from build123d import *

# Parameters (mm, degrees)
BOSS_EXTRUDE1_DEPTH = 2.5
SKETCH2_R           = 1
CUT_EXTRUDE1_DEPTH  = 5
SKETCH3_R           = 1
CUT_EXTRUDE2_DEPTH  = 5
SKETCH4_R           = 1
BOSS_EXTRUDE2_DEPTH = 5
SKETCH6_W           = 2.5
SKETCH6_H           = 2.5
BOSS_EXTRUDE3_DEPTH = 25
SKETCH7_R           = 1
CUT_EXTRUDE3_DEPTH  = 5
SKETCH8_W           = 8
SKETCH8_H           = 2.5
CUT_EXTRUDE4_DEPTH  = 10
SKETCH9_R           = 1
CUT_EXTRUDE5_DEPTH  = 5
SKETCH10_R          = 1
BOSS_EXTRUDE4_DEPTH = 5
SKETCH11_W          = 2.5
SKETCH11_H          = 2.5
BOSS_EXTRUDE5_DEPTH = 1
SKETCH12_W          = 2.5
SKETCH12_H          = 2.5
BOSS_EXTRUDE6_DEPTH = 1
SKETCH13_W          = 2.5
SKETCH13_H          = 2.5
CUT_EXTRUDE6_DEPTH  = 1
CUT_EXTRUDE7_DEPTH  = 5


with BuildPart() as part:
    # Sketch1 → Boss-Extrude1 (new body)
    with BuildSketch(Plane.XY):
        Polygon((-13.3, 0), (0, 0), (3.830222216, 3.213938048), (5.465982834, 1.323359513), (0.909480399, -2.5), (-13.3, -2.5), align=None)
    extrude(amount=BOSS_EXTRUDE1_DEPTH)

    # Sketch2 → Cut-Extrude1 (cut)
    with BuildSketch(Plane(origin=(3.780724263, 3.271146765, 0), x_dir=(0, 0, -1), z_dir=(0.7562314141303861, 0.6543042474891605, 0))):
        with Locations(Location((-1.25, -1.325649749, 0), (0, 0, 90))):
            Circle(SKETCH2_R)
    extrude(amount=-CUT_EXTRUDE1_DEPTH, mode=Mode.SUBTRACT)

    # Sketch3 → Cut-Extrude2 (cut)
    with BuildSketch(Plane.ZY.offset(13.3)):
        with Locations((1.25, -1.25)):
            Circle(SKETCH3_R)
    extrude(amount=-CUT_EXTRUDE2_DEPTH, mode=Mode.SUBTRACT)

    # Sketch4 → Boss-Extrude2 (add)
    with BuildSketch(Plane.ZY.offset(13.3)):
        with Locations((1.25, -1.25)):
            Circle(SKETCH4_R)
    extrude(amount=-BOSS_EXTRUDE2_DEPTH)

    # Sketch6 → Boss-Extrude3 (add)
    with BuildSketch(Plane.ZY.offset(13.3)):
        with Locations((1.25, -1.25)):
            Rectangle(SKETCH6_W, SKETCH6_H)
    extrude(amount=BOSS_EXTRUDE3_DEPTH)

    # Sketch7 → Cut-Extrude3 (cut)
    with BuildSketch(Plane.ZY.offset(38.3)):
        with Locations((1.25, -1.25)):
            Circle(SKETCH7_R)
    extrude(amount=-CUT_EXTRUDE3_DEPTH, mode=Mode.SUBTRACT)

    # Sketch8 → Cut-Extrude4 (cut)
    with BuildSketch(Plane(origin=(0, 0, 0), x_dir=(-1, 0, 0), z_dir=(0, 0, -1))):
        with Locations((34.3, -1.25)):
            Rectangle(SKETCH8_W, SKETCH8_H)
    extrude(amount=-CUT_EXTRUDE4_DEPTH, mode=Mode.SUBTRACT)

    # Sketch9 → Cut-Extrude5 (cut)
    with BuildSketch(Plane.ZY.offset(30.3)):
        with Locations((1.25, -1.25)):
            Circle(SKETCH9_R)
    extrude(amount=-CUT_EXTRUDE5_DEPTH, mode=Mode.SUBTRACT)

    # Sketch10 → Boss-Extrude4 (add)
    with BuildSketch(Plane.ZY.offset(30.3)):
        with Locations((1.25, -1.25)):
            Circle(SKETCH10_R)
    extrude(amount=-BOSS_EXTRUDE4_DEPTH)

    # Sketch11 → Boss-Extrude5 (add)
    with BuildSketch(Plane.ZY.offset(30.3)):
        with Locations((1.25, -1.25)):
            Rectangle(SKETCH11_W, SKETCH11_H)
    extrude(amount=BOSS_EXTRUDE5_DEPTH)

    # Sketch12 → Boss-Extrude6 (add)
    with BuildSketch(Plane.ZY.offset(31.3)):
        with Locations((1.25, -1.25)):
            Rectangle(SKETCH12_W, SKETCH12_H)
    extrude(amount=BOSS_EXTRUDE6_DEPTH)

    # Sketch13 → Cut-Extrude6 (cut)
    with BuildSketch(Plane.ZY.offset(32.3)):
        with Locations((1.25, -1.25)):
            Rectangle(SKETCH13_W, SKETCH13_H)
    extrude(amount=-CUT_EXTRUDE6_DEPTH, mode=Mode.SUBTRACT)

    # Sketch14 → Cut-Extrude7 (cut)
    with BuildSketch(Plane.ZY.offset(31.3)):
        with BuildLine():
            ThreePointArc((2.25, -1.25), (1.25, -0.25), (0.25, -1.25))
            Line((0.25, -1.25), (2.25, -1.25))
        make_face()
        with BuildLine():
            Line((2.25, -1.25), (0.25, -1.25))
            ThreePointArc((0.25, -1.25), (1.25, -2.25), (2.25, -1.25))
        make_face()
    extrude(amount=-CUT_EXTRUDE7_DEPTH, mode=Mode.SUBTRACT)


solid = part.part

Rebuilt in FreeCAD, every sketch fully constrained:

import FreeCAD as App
import Part
import Sketcher
Q = App.Units.Quantity

doc = App.newDocument("Part")
body = doc.addObject("PartDesign::Body", "Body")

# Sketch on XY plane
sketch1 = body.newObject("Sketcher::SketchObject", "Sketch")
sketch1.AttachmentSupport = (doc.getObject("XY_Plane"), [""])
sketch1.MapMode = "FlatFace"
sketch1.addGeometry(Part.LineSegment(App.Vector(0, 0, 0), App.Vector(-13.3, 0, 0)), False)
sketch1.addGeometry(Part.LineSegment(App.Vector(-13.3, 0, 0), App.Vector(-13.3, -2.5, 0)), False)
sketch1.addGeometry(Part.LineSegment(App.Vector(-13.3, -2.5, 0), App.Vector(0.9, -2.5, 0)), False)
sketch1.addGeometry(Part.LineSegment(App.Vector(0.9, -2.5, 0), App.Vector(5.5, 1.3, 0)), False)
sketch1.addGeometry(Part.LineSegment(App.Vector(5.5, 1.3, 0), App.Vector(3.8, 3.2, 0)), False)
sketch1.addGeometry(Part.LineSegment(App.Vector(3.8, 3.2, 0), App.Vector(0, 0, 0)), False)
sketch1.addConstraint(Sketcher.Constraint("Coincident", 0, 2, 1, 1))
sketch1.addConstraint(Sketcher.Constraint("Coincident", 1, 2, 2, 1))
sketch1.addConstraint(Sketcher.Constraint("Coincident", 2, 2, 3, 1))
sketch1.addConstraint(Sketcher.Constraint("Coincident", 3, 2, 4, 1))
sketch1.addConstraint(Sketcher.Constraint("Coincident", 4, 2, 5, 1))
sketch1.addConstraint(Sketcher.Constraint("Coincident", 5, 2, 0, 1))
sketch1.addConstraint(Sketcher.Constraint("Horizontal", 0))
sketch1.addConstraint(Sketcher.Constraint("Vertical", 1))
sketch1.addConstraint(Sketcher.Constraint("Horizontal", 2))
sketch1.addConstraint(Sketcher.Constraint("Coincident", 5, 2, -1, 1))
sketch1.addConstraint(Sketcher.Constraint("Parallel", 3, 5))
sketch1.addConstraint(Sketcher.Constraint("Angle", 3, Q("40 deg")))
sketch1.addConstraint(Sketcher.Constraint("Distance", 5, Q("5 mm")))
sketch1.addConstraint(Sketcher.Constraint("DistanceX", 0, 2, 0, 1, Q("13.3 mm")))
sketch1.addConstraint(Sketcher.Constraint("DistanceY", 1, 2, 1, 1, Q("2.5 mm")))
sketch1.addConstraint(Sketcher.Constraint("Distance", 4, Q("2.5 mm")))
sketch1.addConstraint(Sketcher.Constraint("DistanceX", 2, 1, 2, 2, Q("14.20948 mm")))
pad1 = body.newObject("PartDesign::Pad", "Pad")
pad1.Profile = sketch1
pad1.Length = 2.5

# Sketch on an angled plane
sketch2 = body.newObject("Sketcher::SketchObject", "Sketch001")
sketch2.Placement = App.Placement(App.Vector(3.780724, 3.271147, 0), App.Rotation(App.Vector(0, 0, -1), App.Vector(-0.654304247, 0.756231414, 0), App.Vector(0.756231414, 0.654304247, 0), "ZXY"))
sketch2.addGeometry(Part.Circle(App.Vector(-1.2, -1.3, 0), App.Vector(0, 0, 1), 1), False)
sketch2.addConstraint(Sketcher.Constraint("Diameter", 0, Q("2 mm")))
sketch2.addConstraint(Sketcher.Constraint("DistanceX", 0, 3, -1, 1, Q("1.25 mm")))
sketch2.addConstraint(Sketcher.Constraint("DistanceY", 0, 3, -1, 1, Q("1.32565 mm")))
pocket1 = body.newObject("PartDesign::Pocket", "Pocket")
pocket1.Profile = sketch2
pocket1.Length = 5

# Sketch on YZ plane
sketch3 = body.newObject("Sketcher::SketchObject", "Sketch002")
sketch3.AttachmentSupport = (doc.getObject("YZ_Plane"), [""])
sketch3.MapMode = "FlatFace"
sketch3.AttachmentOffset = App.Placement(App.Vector(0, 0, -13.3), App.Rotation())
sketch3.addGeometry(Part.Circle(App.Vector(-1.2, 1.2, 0), App.Vector(0, 0, 1), 1), False)
sketch3.addConstraint(Sketcher.Constraint("Diameter", 0, Q("2 mm")))
sketch3.addConstraint(Sketcher.Constraint("DistanceX", 0, 3, -1, 1, Q("1.25 mm")))
sketch3.addConstraint(Sketcher.Constraint("DistanceY", -1, 1, 0, 3, Q("1.25 mm")))
pocket2 = body.newObject("PartDesign::Pocket", "Pocket001")
pocket2.Profile = sketch3
pocket2.Length = 5
pocket2.Reversed = True

# Sketch on YZ plane
sketch4 = body.newObject("Sketcher::SketchObject", "Sketch003")
sketch4.AttachmentSupport = (doc.getObject("YZ_Plane"), [""])
sketch4.MapMode = "FlatFace"
sketch4.AttachmentOffset = App.Placement(App.Vector(0, 0, -13.3), App.Rotation())
sketch4.addGeometry(Part.Circle(App.Vector(-1.2, 1.2, 0), App.Vector(0, 0, 1), 1), False)
sketch4.addConstraint(Sketcher.Constraint("Diameter", 0, Q("2 mm")))
sketch4.addConstraint(Sketcher.Constraint("DistanceX", 0, 3, -1, 1, Q("1.25 mm")))
sketch4.addConstraint(Sketcher.Constraint("DistanceY", -1, 1, 0, 3, Q("1.25 mm")))
pad2 = body.newObject("PartDesign::Pad", "Pad001")
pad2.Profile = sketch4
pad2.Length = 5

# Sketch on YZ plane
sketch5 = body.newObject("Sketcher::SketchObject", "Sketch004")
sketch5.AttachmentSupport = (doc.getObject("YZ_Plane"), [""])
sketch5.MapMode = "FlatFace"
sketch5.AttachmentOffset = App.Placement(App.Vector(0, 0, -13.3), App.Rotation())
sketch5.addGeometry(Part.LineSegment(App.Vector(0, 0, 0), App.Vector(-2.5, 0, 0)), False)
sketch5.addGeometry(Part.LineSegment(App.Vector(-2.5, 0, 0), App.Vector(-2.5, 2.5, 0)), False)
sketch5.addGeometry(Part.LineSegment(App.Vector(-2.5, 2.5, 0), App.Vector(0, 2.5, 0)), False)
sketch5.addGeometry(Part.LineSegment(App.Vector(0, 2.5, 0), App.Vector(0, 0, 0)), False)
sketch5.addConstraint(Sketcher.Constraint("Coincident", 0, 2, 1, 1))
sketch5.addConstraint(Sketcher.Constraint("Coincident", 1, 2, 2, 1))
sketch5.addConstraint(Sketcher.Constraint("Coincident", 2, 2, 3, 1))
sketch5.addConstraint(Sketcher.Constraint("Coincident", 3, 2, 0, 1))
sketch5.addConstraint(Sketcher.Constraint("Horizontal", 0))
sketch5.addConstraint(Sketcher.Constraint("Vertical", 1))
sketch5.addConstraint(Sketcher.Constraint("Horizontal", 2))
sketch5.addConstraint(Sketcher.Constraint("Vertical", 3))
sketch5.addConstraint(Sketcher.Constraint("Coincident", 3, 2, -1, 1))
sketch5.addConstraint(Sketcher.Constraint("Equal", 2, 1))
sketch5.addConstraint(Sketcher.Constraint("DistanceX", 0, 2, 0, 1, Q("2.5 mm")))
pad3 = body.newObject("PartDesign::Pad", "Pad002")
pad3.Profile = sketch5
pad3.Length = 25
pad3.Reversed = True

# Sketch on YZ plane
sketch6 = body.newObject("Sketcher::SketchObject", "Sketch005")
sketch6.AttachmentSupport = (doc.getObject("YZ_Plane"), [""])
sketch6.MapMode = "FlatFace"
sketch6.AttachmentOffset = App.Placement(App.Vector(0, 0, -38.3), App.Rotation())
sketch6.addGeometry(Part.Circle(App.Vector(-1.2, 1.2, 0), App.Vector(0, 0, 1), 1), False)
sketch6.addConstraint(Sketcher.Constraint("Diameter", 0, Q("2 mm")))
sketch6.addConstraint(Sketcher.Constraint("DistanceX", 0, 3, -1, 1, Q("1.25 mm")))
sketch6.addConstraint(Sketcher.Constraint("DistanceY", -1, 1, 0, 3, Q("1.25 mm")))
pocket3 = body.newObject("PartDesign::Pocket", "Pocket002")
pocket3.Profile = sketch6
pocket3.Length = 5
pocket3.Reversed = True

# Sketch on XY plane
sketch7 = body.newObject("Sketcher::SketchObject", "Sketch006")
sketch7.AttachmentSupport = (doc.getObject("XY_Plane"), [""])
sketch7.MapMode = "FlatFace"
sketch7.addGeometry(Part.LineSegment(App.Vector(-30.3, 0, 0), App.Vector(-30.3, -2.5, 0)), False)
sketch7.addGeometry(Part.LineSegment(App.Vector(-30.3, -2.5, 0), App.Vector(-38.3, -2.5, 0)), False)
sketch7.addGeometry(Part.LineSegment(App.Vector(-38.3, -2.5, 0), App.Vector(-38.3, 0, 0)), False)
sketch7.addGeometry(Part.LineSegment(App.Vector(-38.3, 0, 0), App.Vector(-30.3, 0, 0)), False)
sketch7.addConstraint(Sketcher.Constraint("Coincident", 0, 2, 1, 1))
sketch7.addConstraint(Sketcher.Constraint("Coincident", 1, 2, 2, 1))
sketch7.addConstraint(Sketcher.Constraint("Coincident", 2, 2, 3, 1))
sketch7.addConstraint(Sketcher.Constraint("Coincident", 3, 2, 0, 1))
sketch7.addConstraint(Sketcher.Constraint("Vertical", 0))
sketch7.addConstraint(Sketcher.Constraint("Horizontal", 1))
sketch7.addConstraint(Sketcher.Constraint("Vertical", 2))
sketch7.addConstraint(Sketcher.Constraint("Horizontal", 3))
sketch7.addConstraint(Sketcher.Constraint("PointOnObject", 2, 2, -1))
sketch7.addConstraint(Sketcher.Constraint("DistanceX", 1, 2, 1, 1, Q("8 mm")))
sketch7.addConstraint(Sketcher.Constraint("DistanceY", 0, 2, 0, 1, Q("2.5 mm")))
sketch7.addConstraint(Sketcher.Constraint("DistanceX", 0, 2, -1, 1, Q("30.3 mm")))
pocket4 = body.newObject("PartDesign::Pocket", "Pocket003")
pocket4.Profile = sketch7
pocket4.Length = 10
pocket4.Reversed = True

# Sketch on YZ plane
sketch8 = body.newObject("Sketcher::SketchObject", "Sketch007")
sketch8.AttachmentSupport = (doc.getObject("YZ_Plane"), [""])
sketch8.MapMode = "FlatFace"
sketch8.AttachmentOffset = App.Placement(App.Vector(0, 0, -30.3), App.Rotation())
sketch8.addGeometry(Part.Circle(App.Vector(-1.2, 1.2, 0), App.Vector(0, 0, 1), 1), False)
sketch8.addConstraint(Sketcher.Constraint("Diameter", 0, Q("2 mm")))
sketch8.addConstraint(Sketcher.Constraint("DistanceX", 0, 3, -1, 1, Q("1.25 mm")))
sketch8.addConstraint(Sketcher.Constraint("DistanceY", -1, 1, 0, 3, Q("1.25 mm")))
pocket5 = body.newObject("PartDesign::Pocket", "Pocket004")
pocket5.Profile = sketch8
pocket5.Length = 5
pocket5.Reversed = True

# Sketch on YZ plane
sketch9 = body.newObject("Sketcher::SketchObject", "Sketch008")
sketch9.AttachmentSupport = (doc.getObject("YZ_Plane"), [""])
sketch9.MapMode = "FlatFace"
sketch9.AttachmentOffset = App.Placement(App.Vector(0, 0, -30.3), App.Rotation())
sketch9.addGeometry(Part.Circle(App.Vector(-1.2, 1.2, 0), App.Vector(0, 0, 1), 1), False)
sketch9.addConstraint(Sketcher.Constraint("Diameter", 0, Q("2 mm")))
sketch9.addConstraint(Sketcher.Constraint("DistanceX", 0, 3, -1, 1, Q("1.25 mm")))
sketch9.addConstraint(Sketcher.Constraint("DistanceY", -1, 1, 0, 3, Q("1.25 mm")))
pad4 = body.newObject("PartDesign::Pad", "Pad003")
pad4.Profile = sketch9
pad4.Length = 5

# Sketch on YZ plane
sketch10 = body.newObject("Sketcher::SketchObject", "Sketch009")
sketch10.AttachmentSupport = (doc.getObject("YZ_Plane"), [""])
sketch10.MapMode = "FlatFace"
sketch10.AttachmentOffset = App.Placement(App.Vector(0, 0, -30.3), App.Rotation())
sketch10.addGeometry(Part.LineSegment(App.Vector(0, 0, 0), App.Vector(-2.5, 0, 0)), False)
sketch10.addGeometry(Part.LineSegment(App.Vector(-2.5, 0, 0), App.Vector(-2.5, 2.5, 0)), False)
sketch10.addGeometry(Part.LineSegment(App.Vector(-2.5, 2.5, 0), App.Vector(0, 2.5, 0)), False)
sketch10.addGeometry(Part.LineSegment(App.Vector(0, 2.5, 0), App.Vector(0, 0, 0)), False)
sketch10.addConstraint(Sketcher.Constraint("Coincident", 0, 2, 1, 1))
sketch10.addConstraint(Sketcher.Constraint("Coincident", 1, 2, 2, 1))
sketch10.addConstraint(Sketcher.Constraint("Coincident", 2, 2, 3, 1))
sketch10.addConstraint(Sketcher.Constraint("Coincident", 3, 2, 0, 1))
sketch10.addConstraint(Sketcher.Constraint("Horizontal", 0))
sketch10.addConstraint(Sketcher.Constraint("Vertical", 1))
sketch10.addConstraint(Sketcher.Constraint("Horizontal", 2))
sketch10.addConstraint(Sketcher.Constraint("Vertical", 3))
sketch10.addConstraint(Sketcher.Constraint("Coincident", 3, 2, -1, 1))
sketch10.addConstraint(Sketcher.Constraint("Equal", 2, 1))
sketch10.addConstraint(Sketcher.Constraint("DistanceX", 0, 2, 0, 1, Q("2.5 mm")))
pad5 = body.newObject("PartDesign::Pad", "Pad004")
pad5.Profile = sketch10
pad5.Length = 1
pad5.Reversed = True

# Sketch on YZ plane
sketch11 = body.newObject("Sketcher::SketchObject", "Sketch010")
sketch11.AttachmentSupport = (doc.getObject("YZ_Plane"), [""])
sketch11.MapMode = "FlatFace"
sketch11.AttachmentOffset = App.Placement(App.Vector(0, 0, -31.3), App.Rotation())
sketch11.addGeometry(Part.LineSegment(App.Vector(0, 0, 0), App.Vector(-2.5, 0, 0)), False)
sketch11.addGeometry(Part.LineSegment(App.Vector(-2.5, 0, 0), App.Vector(-2.5, 2.5, 0)), False)
sketch11.addGeometry(Part.LineSegment(App.Vector(-2.5, 2.5, 0), App.Vector(0, 2.5, 0)), False)
sketch11.addGeometry(Part.LineSegment(App.Vector(0, 2.5, 0), App.Vector(0, 0, 0)), False)
sketch11.addConstraint(Sketcher.Constraint("Coincident", 0, 2, 1, 1))
sketch11.addConstraint(Sketcher.Constraint("Coincident", 1, 2, 2, 1))
sketch11.addConstraint(Sketcher.Constraint("Coincident", 2, 2, 3, 1))
sketch11.addConstraint(Sketcher.Constraint("Coincident", 3, 2, 0, 1))
sketch11.addConstraint(Sketcher.Constraint("Horizontal", 0))
sketch11.addConstraint(Sketcher.Constraint("Vertical", 1))
sketch11.addConstraint(Sketcher.Constraint("Horizontal", 2))
sketch11.addConstraint(Sketcher.Constraint("Vertical", 3))
sketch11.addConstraint(Sketcher.Constraint("Coincident", 3, 2, -1, 1))
sketch11.addConstraint(Sketcher.Constraint("Equal", 2, 1))
sketch11.addConstraint(Sketcher.Constraint("DistanceX", 0, 2, 0, 1, Q("2.5 mm")))
pad6 = body.newObject("PartDesign::Pad", "Pad005")
pad6.Profile = sketch11
pad6.Length = 1
pad6.Reversed = True

# Sketch on YZ plane
sketch12 = body.newObject("Sketcher::SketchObject", "Sketch011")
sketch12.AttachmentSupport = (doc.getObject("YZ_Plane"), [""])
sketch12.MapMode = "FlatFace"
sketch12.AttachmentOffset = App.Placement(App.Vector(0, 0, -32.3), App.Rotation())
sketch12.addGeometry(Part.LineSegment(App.Vector(0, 0, 0), App.Vector(-2.5, 0, 0)), False)
sketch12.addGeometry(Part.LineSegment(App.Vector(-2.5, 0, 0), App.Vector(-2.5, 2.5, 0)), False)
sketch12.addGeometry(Part.LineSegment(App.Vector(-2.5, 2.5, 0), App.Vector(0, 2.5, 0)), False)
sketch12.addGeometry(Part.LineSegment(App.Vector(0, 2.5, 0), App.Vector(0, 0, 0)), False)
sketch12.addConstraint(Sketcher.Constraint("Coincident", 0, 2, 1, 1))
sketch12.addConstraint(Sketcher.Constraint("Coincident", 1, 2, 2, 1))
sketch12.addConstraint(Sketcher.Constraint("Coincident", 2, 2, 3, 1))
sketch12.addConstraint(Sketcher.Constraint("Coincident", 3, 2, 0, 1))
sketch12.addConstraint(Sketcher.Constraint("Horizontal", 0))
sketch12.addConstraint(Sketcher.Constraint("Vertical", 1))
sketch12.addConstraint(Sketcher.Constraint("Horizontal", 2))
sketch12.addConstraint(Sketcher.Constraint("Vertical", 3))
sketch12.addConstraint(Sketcher.Constraint("Coincident", 3, 2, -1, 1))
sketch12.addConstraint(Sketcher.Constraint("Equal", 2, 1))
sketch12.addConstraint(Sketcher.Constraint("DistanceX", 0, 2, 0, 1, Q("2.5 mm")))
pocket6 = body.newObject("PartDesign::Pocket", "Pocket005")
pocket6.Profile = sketch12
pocket6.Length = 1
pocket6.Reversed = True

# Sketch on YZ plane
sketch13 = body.newObject("Sketcher::SketchObject", "Sketch012")
sketch13.AttachmentSupport = (doc.getObject("YZ_Plane"), [""])
sketch13.MapMode = "FlatFace"
sketch13.AttachmentOffset = App.Placement(App.Vector(0, 0, -31.3), App.Rotation())
sketch13.addGeometry(Part.Circle(App.Vector(-1.2, 1.2, 0), App.Vector(0, 0, 1), 1), False)
sketch13.addConstraint(Sketcher.Constraint("Diameter", 0, Q("2 mm")))
sketch13.addConstraint(Sketcher.Constraint("DistanceX", 0, 3, -1, 1, Q("1.25 mm")))
sketch13.addConstraint(Sketcher.Constraint("DistanceY", -1, 1, 0, 3, Q("1.25 mm")))
pocket7 = body.newObject("PartDesign::Pocket", "Pocket006")
pocket7.Profile = sketch13
pocket7.Length = 5
pocket7.Reversed = True

doc.recompute()
